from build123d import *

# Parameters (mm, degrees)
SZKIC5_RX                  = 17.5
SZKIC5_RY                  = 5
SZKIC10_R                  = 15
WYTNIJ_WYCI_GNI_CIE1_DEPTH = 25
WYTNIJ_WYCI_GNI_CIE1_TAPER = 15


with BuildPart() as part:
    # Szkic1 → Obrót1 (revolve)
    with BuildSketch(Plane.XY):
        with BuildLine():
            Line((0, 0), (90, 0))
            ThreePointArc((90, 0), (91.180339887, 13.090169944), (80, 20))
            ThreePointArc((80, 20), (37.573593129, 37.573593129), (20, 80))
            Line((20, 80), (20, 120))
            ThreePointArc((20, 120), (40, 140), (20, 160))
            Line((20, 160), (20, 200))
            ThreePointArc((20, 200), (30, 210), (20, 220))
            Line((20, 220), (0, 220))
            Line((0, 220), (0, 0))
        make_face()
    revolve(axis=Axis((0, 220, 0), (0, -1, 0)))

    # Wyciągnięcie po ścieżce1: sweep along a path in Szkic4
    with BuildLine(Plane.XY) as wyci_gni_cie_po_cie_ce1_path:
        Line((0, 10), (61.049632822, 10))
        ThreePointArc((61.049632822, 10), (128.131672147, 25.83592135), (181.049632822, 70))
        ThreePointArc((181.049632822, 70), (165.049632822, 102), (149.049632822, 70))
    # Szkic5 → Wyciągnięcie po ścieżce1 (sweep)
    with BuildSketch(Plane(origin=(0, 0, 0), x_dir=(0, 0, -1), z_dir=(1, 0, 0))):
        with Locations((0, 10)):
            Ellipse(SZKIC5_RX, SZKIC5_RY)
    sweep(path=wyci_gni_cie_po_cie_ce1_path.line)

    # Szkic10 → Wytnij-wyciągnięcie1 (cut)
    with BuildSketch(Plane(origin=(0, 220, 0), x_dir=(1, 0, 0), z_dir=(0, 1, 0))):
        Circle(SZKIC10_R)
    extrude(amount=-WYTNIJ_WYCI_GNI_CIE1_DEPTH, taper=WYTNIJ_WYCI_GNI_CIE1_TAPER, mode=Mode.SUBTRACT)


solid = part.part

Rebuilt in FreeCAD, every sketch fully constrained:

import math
import FreeCAD as App
import Part
import Sketcher

V = App.Vector
Q = App.Units.Quantity

doc = App.newDocument("Part")
body = doc.addObject("PartDesign::Body", "Body")

sketch1 = body.newObject("Sketcher::SketchObject", "Sketch")
sketch1.AttachmentSupport = (doc.getObject("XY_Plane"), [""])
sketch1.MapMode = "FlatFace"
sketch1.addGeometry([
    Part.LineSegment(V(0, 0, 0), V(90, 0, 0)),
    Part.ArcOfCircle(Part.Circle(V(80, 7.5, 0), V(0, 0, 1), 12.5), math.radians(-36.869898), math.radians(90)),
    Part.ArcOfCircle(Part.Circle(V(80, 80, 0), V(0, 0, 1), 60), math.radians(-180), math.radians(-90)),
    Part.LineSegment(V(20, 80, 0), V(20, 120, 0)),
    Part.ArcOfCircle(Part.Circle(V(20, 140, 0), V(0, 0, 1), 20), math.radians(-90), math.radians(90)),
    Part.LineSegment(V(20, 160, 0), V(20, 200, 0)),
    Part.ArcOfCircle(Part.Circle(V(20, 210, 0), V(0, 0, 1), 10), math.radians(-90), math.radians(90)),
    Part.LineSegment(V(20, 220, 0), V(0, 220, 0)),
    Part.LineSegment(V(0, 220, 0), V(0, 0, 0)),
], False)
sketch1.addConstraint([
    Sketcher.Constraint("Coincident", 0, 2, 1, 1),
    Sketcher.Constraint("Tangent", 1, 2, 2, 2),
    Sketcher.Constraint("Tangent", 2, 1, 3, 1),
    Sketcher.Constraint("Coincident", 3, 2, 4, 1),
    Sketcher.Constraint("Coincident", 4, 2, 5, 1),
    Sketcher.Constraint("Coincident", 5, 2, 6, 1),
    Sketcher.Constraint("Tangent", 6, 2, 7, 1),
    Sketcher.Constraint("Coincident", 7, 2, 8, 1),
    Sketcher.Constraint("Coincident", 8, 2, 0, 1),
    Sketcher.Constraint("Horizontal", 0),
    Sketcher.Constraint("Vertical", 3),
    Sketcher.Constraint("Vertical", 5),
    Sketcher.Constraint("Horizontal", 7),
    Sketcher.Constraint("Vertical", 8),
    Sketcher.Constraint("Coincident", 8, 2, -1, 1),
    Sketcher.Constraint("Vertical", 1, 3, 2, 3),
    Sketcher.Constraint("Vertical", 4, 3, 6, 3),
    Sketcher.Constraint("Vertical", 6, 3, 2, 1),
    Sketcher.Constraint("Vertical", 3, 2, 4, 2),
    Sketcher.Constraint("Equal", 3, 5),
    Sketcher.Constraint("Radius", 2, Q("60 mm")),
    Sketcher.Constraint("Radius", 4, Q("20 mm")),
    Sketcher.Constraint("Radius", 6, Q("10 mm")),
    Sketcher.Constraint("Radius", 1, Q("12.5 mm")),
    Sketcher.Constraint("DistanceX", 0, 1, 0, 2, Q("90 mm")),
    Sketcher.Constraint("DistanceX", 7, 2, 7, 1, Q("20 mm")),
    Sketcher.Constraint("DistanceY", 3, 1, 3, 2, Q("40 mm")),
])
revolution = body.newObject("PartDesign::Revolution", "Revolution")
revolution.Profile = sketch1
revolution.ReferenceAxis = (sketch1, ["V_Axis"])
revolution.Angle = 360

sketch2 = body.newObject("Sketcher::SketchObject", "Sketch001")
sketch2.AttachmentSupport = (doc.getObject("YZ_Plane"), [""])
sketch2.MapMode = "FlatFace"
sketch2.addGeometry(Part.Ellipse(V(10, -17.5, 0), V(15, 0, 0), V(10, 0, 0)), False)
sketch2.addConstraint(Sketcher.Constraint("Block", 0))

sketch3 = body.newObject("Sketcher::SketchObject", "Sketch002")
sketch3.AttachmentSupport = (doc.getObject("XY_Plane"), [""])
sketch3.MapMode = "FlatFace"
sketch3.addGeometry([
    Part.LineSegment(V(0, 10, 0), V(61.049633, 10, 0)),
    Part.ArcOfCircle(Part.Circle(V(61.049633, 160, 0), V(0, 0, 1), 150), math.radians(-90), math.radians(-36.869898)),
    Part.ArcOfCircle(Part.Circle(V(165.049633, 82, 0), V(0, 0, 1), 20), math.radians(-36.869898), math.radians(216.869898)),
], False)
sketch3.addConstraint([
    Sketcher.Constraint("Tangent", 0, 2, 1, 1),
    Sketcher.Constraint("Tangent", 1, 2, 2, 1),
    Sketcher.Constraint("Horizontal", 0),
    Sketcher.Constraint("PointOnObject", 0, 1, -2),
    Sketcher.Constraint("Horizontal", 1, 2, 2, 2),
    Sketcher.Constraint("Radius", 1, Q("150 mm")),
    Sketcher.Constraint("Radius", 2, Q("20 mm")),
    Sketcher.Constraint("DistanceY", -1, 1, 1, 3, Q("160 mm")),
    Sketcher.Constraint("DistanceY", -1, 1, 2, 3, Q("82 mm")),
    Sketcher.Constraint("DistanceX", 0, 1, 0, 2, Q("61.049633 mm")),
])
doc.recompute()

additivepipe = body.newObject("PartDesign::AdditivePipe", "AdditivePipe")
additivepipe.Profile = sketch2
additivepipe.Spine = (sketch3, ["Edge1", "Edge2", "Edge3"])

sketch4 = body.newObject("Sketcher::SketchObject", "Sketch003")
sketch4.AttachmentSupport = (doc.getObject("XZ_Plane"), [""])
sketch4.MapMode = "FlatFace"
sketch4.AttachmentOffset = App.Placement(V(0, 0, -220), App.Rotation())
sketch4.addGeometry(Part.Circle(V(0, 0, 0), V(0, 0, 1), 15), False)
sketch4.addConstraint([
    Sketcher.Constraint("Coincident", 0, 3, -1, 1),
    Sketcher.Constraint("Diameter", 0, Q("30 mm")),
])
pocket1 = body.newObject("PartDesign::Pocket", "Pocket")
pocket1.Profile = sketch4
pocket1.Length = 25
pocket1.Reversed = True
pocket1.TaperAngle = -15

doc.recompute()
